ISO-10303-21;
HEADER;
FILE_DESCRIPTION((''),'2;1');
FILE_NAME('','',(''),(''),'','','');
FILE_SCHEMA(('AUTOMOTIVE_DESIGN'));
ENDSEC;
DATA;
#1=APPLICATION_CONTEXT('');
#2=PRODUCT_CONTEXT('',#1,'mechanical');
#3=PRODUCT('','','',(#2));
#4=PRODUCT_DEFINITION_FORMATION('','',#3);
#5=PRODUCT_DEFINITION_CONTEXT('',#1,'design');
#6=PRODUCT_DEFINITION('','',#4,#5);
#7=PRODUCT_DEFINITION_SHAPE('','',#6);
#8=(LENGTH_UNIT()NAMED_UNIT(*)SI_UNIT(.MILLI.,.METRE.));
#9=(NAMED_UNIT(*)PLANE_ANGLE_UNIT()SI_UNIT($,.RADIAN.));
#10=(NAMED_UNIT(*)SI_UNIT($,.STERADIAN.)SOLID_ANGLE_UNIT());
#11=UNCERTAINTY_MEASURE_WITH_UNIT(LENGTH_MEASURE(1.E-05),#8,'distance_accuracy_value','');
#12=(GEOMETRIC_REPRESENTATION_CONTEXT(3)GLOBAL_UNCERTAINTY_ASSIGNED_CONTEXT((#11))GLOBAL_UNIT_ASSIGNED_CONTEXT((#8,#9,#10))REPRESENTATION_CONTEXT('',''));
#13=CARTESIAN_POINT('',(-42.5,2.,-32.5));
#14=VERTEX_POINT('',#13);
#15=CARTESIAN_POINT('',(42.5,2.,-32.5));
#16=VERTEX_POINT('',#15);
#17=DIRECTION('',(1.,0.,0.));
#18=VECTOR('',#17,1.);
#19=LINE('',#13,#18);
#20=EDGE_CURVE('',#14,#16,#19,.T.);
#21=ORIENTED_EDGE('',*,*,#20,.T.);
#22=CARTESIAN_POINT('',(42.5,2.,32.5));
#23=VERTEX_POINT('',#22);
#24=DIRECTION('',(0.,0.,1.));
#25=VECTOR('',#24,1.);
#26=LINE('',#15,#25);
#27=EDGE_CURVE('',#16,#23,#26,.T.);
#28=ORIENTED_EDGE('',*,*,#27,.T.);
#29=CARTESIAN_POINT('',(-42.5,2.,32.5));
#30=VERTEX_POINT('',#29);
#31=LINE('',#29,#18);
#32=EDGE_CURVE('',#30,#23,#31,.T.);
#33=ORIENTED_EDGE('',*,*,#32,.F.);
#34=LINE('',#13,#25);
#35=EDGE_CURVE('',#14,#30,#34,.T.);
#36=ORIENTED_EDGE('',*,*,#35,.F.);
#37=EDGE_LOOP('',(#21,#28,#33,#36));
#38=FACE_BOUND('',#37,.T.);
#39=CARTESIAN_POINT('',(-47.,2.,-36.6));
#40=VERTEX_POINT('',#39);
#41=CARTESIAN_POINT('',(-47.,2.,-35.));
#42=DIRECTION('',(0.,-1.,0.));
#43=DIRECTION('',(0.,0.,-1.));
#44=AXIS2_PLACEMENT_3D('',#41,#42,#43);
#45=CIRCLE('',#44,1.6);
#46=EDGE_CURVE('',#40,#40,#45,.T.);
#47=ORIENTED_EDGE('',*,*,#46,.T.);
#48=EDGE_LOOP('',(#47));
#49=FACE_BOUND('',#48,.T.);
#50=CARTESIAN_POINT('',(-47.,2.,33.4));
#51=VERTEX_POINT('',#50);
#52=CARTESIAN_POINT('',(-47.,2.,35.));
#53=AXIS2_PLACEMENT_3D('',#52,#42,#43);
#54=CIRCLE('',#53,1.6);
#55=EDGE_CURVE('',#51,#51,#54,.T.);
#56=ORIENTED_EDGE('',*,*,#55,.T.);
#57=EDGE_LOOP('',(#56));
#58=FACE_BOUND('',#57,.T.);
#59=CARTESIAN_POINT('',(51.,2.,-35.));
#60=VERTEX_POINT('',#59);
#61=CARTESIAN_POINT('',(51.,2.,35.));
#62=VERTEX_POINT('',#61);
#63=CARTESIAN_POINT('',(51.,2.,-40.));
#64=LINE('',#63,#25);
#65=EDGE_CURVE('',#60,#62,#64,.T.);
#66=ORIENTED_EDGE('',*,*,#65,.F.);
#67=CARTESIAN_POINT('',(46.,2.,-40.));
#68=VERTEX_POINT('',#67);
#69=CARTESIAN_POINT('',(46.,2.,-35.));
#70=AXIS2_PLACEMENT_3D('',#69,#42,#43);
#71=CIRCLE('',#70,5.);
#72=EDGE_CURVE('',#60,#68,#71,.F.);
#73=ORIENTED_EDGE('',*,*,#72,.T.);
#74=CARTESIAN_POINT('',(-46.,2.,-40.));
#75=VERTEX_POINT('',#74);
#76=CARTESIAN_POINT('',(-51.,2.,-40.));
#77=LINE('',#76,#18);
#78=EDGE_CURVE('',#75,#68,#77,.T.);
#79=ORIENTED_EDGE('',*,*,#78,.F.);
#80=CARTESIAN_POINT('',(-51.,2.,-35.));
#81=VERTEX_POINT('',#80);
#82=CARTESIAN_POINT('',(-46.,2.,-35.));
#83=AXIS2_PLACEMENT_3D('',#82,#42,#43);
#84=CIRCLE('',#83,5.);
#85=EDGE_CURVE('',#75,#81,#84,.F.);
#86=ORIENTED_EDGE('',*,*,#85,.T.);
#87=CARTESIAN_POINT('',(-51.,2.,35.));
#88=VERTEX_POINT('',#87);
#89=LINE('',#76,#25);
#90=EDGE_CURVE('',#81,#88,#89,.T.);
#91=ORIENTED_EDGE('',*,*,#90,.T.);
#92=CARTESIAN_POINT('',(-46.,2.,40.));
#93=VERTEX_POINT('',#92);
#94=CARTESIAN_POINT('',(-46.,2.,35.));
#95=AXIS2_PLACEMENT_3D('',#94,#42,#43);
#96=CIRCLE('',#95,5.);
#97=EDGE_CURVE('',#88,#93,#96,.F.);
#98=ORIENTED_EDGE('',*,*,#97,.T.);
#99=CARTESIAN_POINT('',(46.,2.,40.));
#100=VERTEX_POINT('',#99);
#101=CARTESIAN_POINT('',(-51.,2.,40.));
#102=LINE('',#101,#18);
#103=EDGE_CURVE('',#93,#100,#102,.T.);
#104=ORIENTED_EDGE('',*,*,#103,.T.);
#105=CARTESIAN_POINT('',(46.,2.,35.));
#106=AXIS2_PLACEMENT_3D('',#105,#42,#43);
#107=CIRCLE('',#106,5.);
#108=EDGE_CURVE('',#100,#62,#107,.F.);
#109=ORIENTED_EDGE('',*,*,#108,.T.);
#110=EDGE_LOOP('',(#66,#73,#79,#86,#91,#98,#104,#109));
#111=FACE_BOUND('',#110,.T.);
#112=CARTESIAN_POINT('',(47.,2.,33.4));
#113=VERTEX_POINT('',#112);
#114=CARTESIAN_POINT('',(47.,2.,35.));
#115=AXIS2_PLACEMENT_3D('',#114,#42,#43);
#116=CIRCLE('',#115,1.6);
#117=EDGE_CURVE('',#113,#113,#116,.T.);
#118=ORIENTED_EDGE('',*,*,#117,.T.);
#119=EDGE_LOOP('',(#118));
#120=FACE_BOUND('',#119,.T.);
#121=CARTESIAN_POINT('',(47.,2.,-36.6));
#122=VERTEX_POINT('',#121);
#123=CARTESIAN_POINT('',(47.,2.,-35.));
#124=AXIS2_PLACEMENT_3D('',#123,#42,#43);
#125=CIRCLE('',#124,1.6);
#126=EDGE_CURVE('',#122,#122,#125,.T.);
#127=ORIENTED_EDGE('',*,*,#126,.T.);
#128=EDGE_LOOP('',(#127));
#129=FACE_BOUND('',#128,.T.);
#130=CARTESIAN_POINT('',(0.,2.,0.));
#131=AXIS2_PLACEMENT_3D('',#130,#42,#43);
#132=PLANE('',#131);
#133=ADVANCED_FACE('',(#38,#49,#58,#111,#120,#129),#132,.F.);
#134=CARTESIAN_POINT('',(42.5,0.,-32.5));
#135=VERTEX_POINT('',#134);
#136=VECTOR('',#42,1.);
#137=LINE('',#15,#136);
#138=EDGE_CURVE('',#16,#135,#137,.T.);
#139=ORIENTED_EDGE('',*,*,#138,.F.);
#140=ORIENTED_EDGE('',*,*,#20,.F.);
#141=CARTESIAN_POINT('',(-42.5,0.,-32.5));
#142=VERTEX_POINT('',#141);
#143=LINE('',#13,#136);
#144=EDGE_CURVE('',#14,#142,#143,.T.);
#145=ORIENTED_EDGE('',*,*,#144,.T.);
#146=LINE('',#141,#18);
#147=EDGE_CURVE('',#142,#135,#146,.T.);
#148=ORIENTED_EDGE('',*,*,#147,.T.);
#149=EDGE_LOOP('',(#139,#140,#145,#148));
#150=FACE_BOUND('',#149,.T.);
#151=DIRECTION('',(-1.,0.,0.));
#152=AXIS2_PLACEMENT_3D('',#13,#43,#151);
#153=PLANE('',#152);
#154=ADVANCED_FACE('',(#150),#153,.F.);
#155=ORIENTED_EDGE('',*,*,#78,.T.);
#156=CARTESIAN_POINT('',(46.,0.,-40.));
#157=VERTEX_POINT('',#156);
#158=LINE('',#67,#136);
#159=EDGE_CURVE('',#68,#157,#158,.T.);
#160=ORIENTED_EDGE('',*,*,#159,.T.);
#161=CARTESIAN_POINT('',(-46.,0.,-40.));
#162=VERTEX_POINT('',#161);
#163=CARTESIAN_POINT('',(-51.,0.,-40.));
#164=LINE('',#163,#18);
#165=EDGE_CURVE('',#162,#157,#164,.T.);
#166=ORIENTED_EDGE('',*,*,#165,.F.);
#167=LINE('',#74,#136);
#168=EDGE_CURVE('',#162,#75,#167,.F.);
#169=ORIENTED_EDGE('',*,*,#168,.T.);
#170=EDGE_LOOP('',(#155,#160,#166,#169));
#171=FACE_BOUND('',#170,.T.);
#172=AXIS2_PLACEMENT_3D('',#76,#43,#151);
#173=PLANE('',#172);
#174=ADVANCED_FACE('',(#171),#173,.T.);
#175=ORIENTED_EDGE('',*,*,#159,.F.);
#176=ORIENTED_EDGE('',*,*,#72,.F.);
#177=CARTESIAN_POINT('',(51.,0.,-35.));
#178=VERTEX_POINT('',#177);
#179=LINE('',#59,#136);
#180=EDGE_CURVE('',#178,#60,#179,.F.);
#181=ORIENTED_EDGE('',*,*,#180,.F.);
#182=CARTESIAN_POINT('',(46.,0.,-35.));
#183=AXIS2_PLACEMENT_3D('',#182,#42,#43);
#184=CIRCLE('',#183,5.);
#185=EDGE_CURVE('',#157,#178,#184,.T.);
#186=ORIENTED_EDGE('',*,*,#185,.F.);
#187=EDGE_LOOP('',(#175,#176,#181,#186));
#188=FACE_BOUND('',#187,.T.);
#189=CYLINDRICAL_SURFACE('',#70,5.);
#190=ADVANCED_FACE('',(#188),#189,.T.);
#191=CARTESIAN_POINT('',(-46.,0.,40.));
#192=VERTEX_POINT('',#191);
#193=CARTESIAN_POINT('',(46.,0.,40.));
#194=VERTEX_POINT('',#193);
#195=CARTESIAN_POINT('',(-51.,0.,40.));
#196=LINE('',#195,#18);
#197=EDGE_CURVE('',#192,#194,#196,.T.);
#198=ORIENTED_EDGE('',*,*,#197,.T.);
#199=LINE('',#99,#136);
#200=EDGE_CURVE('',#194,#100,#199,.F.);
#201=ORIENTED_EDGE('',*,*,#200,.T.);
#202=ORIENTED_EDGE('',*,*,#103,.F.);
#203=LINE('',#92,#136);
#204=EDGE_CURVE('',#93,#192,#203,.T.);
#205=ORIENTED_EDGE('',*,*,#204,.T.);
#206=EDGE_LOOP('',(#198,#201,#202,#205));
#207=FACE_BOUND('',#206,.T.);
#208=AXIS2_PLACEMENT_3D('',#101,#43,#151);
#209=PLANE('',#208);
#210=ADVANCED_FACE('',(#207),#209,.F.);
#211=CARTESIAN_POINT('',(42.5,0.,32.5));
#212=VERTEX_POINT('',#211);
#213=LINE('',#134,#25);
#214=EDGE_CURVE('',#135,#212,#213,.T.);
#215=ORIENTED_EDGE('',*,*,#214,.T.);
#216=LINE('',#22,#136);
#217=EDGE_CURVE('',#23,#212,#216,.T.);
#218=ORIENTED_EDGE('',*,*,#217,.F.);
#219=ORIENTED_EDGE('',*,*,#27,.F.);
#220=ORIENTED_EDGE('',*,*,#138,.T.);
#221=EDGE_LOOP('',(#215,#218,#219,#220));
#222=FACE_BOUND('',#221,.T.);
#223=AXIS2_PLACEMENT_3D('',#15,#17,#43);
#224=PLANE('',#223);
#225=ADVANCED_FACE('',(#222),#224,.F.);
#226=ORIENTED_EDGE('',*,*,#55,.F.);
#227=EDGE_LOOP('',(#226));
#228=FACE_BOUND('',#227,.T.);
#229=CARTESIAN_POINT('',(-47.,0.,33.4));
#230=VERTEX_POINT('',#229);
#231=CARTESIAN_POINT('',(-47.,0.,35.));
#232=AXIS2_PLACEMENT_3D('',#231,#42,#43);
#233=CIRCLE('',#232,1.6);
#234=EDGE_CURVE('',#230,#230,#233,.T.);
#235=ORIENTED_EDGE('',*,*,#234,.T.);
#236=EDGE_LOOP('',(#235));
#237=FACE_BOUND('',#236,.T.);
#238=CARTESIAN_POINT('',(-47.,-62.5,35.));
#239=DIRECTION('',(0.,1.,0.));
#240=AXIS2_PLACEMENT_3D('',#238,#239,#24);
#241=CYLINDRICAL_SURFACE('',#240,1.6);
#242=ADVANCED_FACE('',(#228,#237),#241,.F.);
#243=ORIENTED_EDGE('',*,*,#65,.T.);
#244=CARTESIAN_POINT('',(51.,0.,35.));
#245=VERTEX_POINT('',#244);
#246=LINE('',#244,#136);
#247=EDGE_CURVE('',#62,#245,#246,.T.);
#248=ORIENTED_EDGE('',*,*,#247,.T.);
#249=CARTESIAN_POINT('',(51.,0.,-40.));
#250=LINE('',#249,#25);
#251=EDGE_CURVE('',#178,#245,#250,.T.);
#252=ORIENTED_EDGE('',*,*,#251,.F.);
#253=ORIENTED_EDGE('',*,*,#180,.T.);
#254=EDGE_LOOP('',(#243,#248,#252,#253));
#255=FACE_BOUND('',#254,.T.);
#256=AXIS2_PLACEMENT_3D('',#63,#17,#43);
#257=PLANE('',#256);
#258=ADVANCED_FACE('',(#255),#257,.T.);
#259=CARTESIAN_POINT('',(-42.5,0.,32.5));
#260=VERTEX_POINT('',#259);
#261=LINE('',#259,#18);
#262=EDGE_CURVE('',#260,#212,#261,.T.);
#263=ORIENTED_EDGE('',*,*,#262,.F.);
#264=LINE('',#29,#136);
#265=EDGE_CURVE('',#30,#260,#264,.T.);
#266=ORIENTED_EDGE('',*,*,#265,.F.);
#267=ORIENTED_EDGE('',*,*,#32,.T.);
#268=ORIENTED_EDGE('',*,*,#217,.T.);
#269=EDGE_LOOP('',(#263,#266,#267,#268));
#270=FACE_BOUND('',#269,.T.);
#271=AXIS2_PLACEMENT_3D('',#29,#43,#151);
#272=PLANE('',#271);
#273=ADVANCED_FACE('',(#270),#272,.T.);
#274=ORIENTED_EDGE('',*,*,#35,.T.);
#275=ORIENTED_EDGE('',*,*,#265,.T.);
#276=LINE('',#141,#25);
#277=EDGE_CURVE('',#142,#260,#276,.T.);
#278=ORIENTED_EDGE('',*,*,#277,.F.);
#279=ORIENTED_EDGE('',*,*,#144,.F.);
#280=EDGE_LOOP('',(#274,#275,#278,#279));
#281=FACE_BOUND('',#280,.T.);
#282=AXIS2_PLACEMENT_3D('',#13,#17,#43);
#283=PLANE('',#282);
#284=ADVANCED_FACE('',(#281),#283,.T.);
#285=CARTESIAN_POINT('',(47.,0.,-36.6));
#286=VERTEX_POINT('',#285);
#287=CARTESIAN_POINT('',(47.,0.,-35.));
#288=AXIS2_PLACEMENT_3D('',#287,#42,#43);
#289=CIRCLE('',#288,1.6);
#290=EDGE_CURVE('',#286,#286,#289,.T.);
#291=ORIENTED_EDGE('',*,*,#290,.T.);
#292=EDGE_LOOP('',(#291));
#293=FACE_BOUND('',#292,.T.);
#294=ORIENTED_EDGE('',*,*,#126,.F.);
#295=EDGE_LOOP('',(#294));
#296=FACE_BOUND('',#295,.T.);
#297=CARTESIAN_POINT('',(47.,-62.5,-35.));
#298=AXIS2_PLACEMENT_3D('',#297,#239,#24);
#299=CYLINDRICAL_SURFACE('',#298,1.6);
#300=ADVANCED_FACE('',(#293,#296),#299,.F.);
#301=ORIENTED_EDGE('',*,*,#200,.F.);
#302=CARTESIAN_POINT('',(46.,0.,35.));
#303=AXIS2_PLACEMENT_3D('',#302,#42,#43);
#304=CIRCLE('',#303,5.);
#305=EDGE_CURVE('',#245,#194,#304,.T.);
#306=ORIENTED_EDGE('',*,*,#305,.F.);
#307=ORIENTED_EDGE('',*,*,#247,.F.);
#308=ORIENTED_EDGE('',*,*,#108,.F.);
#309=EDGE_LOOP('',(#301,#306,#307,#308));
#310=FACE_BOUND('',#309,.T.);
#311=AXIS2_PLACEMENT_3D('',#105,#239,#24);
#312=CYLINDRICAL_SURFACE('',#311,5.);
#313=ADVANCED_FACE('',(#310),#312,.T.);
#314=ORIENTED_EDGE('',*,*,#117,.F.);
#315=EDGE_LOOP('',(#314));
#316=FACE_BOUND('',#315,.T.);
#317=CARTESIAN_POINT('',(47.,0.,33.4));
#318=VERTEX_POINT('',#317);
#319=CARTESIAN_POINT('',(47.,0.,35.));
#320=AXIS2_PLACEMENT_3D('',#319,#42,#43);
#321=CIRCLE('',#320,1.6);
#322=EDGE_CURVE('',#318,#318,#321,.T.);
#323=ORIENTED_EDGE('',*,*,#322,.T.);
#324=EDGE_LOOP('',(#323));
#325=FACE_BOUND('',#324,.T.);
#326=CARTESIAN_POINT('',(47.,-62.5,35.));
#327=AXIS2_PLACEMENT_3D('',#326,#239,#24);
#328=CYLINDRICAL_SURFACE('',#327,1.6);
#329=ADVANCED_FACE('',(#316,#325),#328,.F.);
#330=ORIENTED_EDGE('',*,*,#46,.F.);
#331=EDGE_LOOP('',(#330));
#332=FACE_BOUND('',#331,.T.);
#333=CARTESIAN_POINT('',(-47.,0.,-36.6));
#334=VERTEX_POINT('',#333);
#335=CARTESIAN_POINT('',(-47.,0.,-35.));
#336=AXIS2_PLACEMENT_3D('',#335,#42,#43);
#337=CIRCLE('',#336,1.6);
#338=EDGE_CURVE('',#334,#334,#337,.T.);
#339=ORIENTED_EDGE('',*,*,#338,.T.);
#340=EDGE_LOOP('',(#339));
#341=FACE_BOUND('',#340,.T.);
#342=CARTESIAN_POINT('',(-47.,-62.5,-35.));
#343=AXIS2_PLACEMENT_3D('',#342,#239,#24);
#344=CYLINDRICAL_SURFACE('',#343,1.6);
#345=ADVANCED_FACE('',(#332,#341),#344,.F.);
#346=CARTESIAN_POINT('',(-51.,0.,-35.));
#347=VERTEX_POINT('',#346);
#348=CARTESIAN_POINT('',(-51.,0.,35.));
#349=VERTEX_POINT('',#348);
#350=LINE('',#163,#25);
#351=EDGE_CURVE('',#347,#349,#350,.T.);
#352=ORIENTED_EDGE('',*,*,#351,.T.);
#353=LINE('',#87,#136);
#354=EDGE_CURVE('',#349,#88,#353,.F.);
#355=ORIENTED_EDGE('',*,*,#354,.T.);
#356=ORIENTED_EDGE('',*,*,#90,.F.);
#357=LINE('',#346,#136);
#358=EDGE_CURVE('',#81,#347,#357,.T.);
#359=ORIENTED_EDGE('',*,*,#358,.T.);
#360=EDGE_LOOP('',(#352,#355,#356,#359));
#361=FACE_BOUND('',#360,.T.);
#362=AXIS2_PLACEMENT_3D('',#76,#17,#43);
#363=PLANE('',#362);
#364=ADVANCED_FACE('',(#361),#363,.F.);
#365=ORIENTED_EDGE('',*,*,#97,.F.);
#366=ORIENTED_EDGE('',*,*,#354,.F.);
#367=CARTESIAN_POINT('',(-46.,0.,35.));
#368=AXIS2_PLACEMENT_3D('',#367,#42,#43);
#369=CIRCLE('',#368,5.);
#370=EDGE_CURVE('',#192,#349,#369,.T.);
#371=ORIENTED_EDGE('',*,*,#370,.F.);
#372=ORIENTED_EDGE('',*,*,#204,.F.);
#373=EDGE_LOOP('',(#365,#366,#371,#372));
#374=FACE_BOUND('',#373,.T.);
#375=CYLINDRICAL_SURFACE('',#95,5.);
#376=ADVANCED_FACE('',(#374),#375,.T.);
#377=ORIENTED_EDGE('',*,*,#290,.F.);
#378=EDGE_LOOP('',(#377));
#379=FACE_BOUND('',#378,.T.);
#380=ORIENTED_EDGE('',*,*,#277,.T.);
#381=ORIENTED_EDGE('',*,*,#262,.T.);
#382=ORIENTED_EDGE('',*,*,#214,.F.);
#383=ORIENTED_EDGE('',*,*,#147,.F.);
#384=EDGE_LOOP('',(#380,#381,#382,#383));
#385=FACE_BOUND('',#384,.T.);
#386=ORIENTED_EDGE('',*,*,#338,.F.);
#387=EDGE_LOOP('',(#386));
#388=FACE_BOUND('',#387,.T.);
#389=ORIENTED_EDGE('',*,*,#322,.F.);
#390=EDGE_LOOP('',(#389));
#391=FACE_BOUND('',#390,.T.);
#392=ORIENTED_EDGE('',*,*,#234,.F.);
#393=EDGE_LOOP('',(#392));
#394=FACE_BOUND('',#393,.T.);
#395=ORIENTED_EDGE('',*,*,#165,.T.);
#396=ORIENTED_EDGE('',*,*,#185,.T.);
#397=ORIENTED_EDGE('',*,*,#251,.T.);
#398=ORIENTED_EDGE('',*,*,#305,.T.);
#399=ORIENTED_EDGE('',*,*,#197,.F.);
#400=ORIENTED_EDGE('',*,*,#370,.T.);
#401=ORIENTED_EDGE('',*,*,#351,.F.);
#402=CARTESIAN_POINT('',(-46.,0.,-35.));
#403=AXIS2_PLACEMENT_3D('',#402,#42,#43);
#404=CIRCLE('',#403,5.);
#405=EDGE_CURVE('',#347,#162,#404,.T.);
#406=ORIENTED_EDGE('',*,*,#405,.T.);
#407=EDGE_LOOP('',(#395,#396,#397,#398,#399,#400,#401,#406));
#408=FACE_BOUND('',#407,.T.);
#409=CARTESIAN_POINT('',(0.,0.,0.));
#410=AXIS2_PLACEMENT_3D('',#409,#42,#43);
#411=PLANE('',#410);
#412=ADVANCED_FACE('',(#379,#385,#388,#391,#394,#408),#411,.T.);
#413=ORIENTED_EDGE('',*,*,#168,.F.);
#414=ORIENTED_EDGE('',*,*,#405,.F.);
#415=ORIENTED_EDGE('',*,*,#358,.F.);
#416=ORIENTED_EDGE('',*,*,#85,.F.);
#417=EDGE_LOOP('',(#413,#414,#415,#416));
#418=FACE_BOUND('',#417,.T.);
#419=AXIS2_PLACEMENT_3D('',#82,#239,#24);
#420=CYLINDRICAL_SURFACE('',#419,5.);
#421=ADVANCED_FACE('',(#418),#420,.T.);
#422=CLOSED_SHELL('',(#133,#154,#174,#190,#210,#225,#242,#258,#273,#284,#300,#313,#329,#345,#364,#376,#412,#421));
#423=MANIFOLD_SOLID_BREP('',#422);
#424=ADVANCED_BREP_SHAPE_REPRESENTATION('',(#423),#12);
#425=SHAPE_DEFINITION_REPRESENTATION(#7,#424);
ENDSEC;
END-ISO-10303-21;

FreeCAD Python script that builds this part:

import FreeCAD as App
import Part
import Sketcher

V = App.Vector
Q = App.Units.Quantity


def edges_at(feature, points):
    """Names of the edges that pass closest to the given points."""
    edges = feature.Shape.Edges
    near = lambda p: min(range(len(edges)), key=lambda i: edges[i].distToShape(Part.Vertex(*p))[0])
    return sorted({f"Edge{near(p) + 1}" for p in points})


def add_polygon(sketch, points):
    """Adds a closed chain of lines whose ends are joined by coincident constraints."""
    first, n = sketch.GeometryCount, len(points)
    for a, b in zip(points, points[1:] + points[:1]):
        sketch.addGeometry(Part.LineSegment(App.Vector(*a, 0), App.Vector(*b, 0)), False)
    for i in range(n):
        sketch.addConstraint(Sketcher.Constraint("Coincident", first + i, 2, first + (i + 1) % n, 1))

doc = App.newDocument("Part")
body = doc.addObject("PartDesign::Body", "Body")

# Sketch on XZ plane
sketch1 = body.newObject("Sketcher::SketchObject", "Sketch")
sketch1.AttachmentSupport = (doc.getObject("XZ_Plane"), [""])
sketch1.MapMode = "FlatFace"
add_polygon(sketch1, [(-51, -40), (-51, 40), (51, 40), (51, -40)])  # lines 0-3
add_polygon(sketch1, [(42, 32), (-42, 32), (-42, -32), (42, -32)])  # lines 4-7
sketch1.addConstraint([
    Sketcher.Constraint("Vertical", 0),
    Sketcher.Constraint("Horizontal", 1),
    Sketcher.Constraint("Vertical", 2),
    Sketcher.Constraint("Horizontal", 3),
    Sketcher.Constraint("Horizontal", 4),
    Sketcher.Constraint("Vertical", 5),
    Sketcher.Constraint("Horizontal", 6),
    Sketcher.Constraint("Vertical", 7),
    Sketcher.Constraint("Symmetric", 0, 2, 2, 2, -1, 1),
    Sketcher.Constraint("Symmetric", 4, 2, 6, 2, -1, 1),
    Sketcher.Constraint("DistanceX", 1, 1, 1, 2, Q("102 mm")),
    Sketcher.Constraint("DistanceX", 4, 2, 4, 1, Q("85 mm")),
    Sketcher.Constraint("DistanceY", 0, 1, 0, 2, Q("80 mm")),
    Sketcher.Constraint("DistanceY", 5, 2, 5, 1, Q("65 mm")),
])
pad1 = body.newObject("PartDesign::Pad", "Pad")
pad1.Profile = sketch1
pad1.Length = 2
pad1.Reversed = True
doc.recompute()

fillet = body.newObject("PartDesign::Fillet", "Fillet")
fillet.Base = (pad1, edges_at(pad1, [
    (-51, 1, 40),
    (-51, 1, -40),
    (51, 1, -40),
    (51, 1, 40),
]))
fillet.Radius = 5

# Sketch on XZ plane
sketch2 = body.newObject("Sketcher::SketchObject", "Sketch001")
sketch2.AttachmentSupport = (doc.getObject("XZ_Plane"), [""])
sketch2.MapMode = "FlatFace"
sketch2.AttachmentOffset = App.Placement(V(0, 0, -2), App.Rotation())
sketch2.addGeometry([
    Part.Circle(V(-47, 35, 0), V(0, 0, 1), 1.6),
    Part.Circle(V(47, 35, 0), V(0, 0, 1), 1.6),
    Part.Circle(V(47, -35, 0), V(0, 0, 1), 1.6),
    Part.Circle(V(-47, -35, 0), V(0, 0, 1), 1.6),
], False)
sketch2.addConstraint([
    Sketcher.Constraint("Equal", 0, 1),
    Sketcher.Constraint("Equal", 1, 2),
    Sketcher.Constraint("Equal", 2, 3),
    Sketcher.Constraint("Symmetric", 0, 3, 2, 3, -1, 1),
    Sketcher.Constraint("Symmetric", 1, 3, 3, 3, -1, 1),
    Sketcher.Constraint("Symmetric", 0, 3, 1, 3, -2),
    Sketcher.Constraint("Diameter", 0, Q("3.2 mm")),
    Sketcher.Constraint("DistanceX", 0, 3, -1, 1, Q("47 mm")),
    Sketcher.Constraint("DistanceY", -1, 1, 0, 3, Q("35 mm")),
])
pocket1 = body.newObject("PartDesign::Pocket", "Pocket")
pocket1.Profile = sketch2
pocket1.Length = 129
pocket1.Midplane = True

doc.recompute()
